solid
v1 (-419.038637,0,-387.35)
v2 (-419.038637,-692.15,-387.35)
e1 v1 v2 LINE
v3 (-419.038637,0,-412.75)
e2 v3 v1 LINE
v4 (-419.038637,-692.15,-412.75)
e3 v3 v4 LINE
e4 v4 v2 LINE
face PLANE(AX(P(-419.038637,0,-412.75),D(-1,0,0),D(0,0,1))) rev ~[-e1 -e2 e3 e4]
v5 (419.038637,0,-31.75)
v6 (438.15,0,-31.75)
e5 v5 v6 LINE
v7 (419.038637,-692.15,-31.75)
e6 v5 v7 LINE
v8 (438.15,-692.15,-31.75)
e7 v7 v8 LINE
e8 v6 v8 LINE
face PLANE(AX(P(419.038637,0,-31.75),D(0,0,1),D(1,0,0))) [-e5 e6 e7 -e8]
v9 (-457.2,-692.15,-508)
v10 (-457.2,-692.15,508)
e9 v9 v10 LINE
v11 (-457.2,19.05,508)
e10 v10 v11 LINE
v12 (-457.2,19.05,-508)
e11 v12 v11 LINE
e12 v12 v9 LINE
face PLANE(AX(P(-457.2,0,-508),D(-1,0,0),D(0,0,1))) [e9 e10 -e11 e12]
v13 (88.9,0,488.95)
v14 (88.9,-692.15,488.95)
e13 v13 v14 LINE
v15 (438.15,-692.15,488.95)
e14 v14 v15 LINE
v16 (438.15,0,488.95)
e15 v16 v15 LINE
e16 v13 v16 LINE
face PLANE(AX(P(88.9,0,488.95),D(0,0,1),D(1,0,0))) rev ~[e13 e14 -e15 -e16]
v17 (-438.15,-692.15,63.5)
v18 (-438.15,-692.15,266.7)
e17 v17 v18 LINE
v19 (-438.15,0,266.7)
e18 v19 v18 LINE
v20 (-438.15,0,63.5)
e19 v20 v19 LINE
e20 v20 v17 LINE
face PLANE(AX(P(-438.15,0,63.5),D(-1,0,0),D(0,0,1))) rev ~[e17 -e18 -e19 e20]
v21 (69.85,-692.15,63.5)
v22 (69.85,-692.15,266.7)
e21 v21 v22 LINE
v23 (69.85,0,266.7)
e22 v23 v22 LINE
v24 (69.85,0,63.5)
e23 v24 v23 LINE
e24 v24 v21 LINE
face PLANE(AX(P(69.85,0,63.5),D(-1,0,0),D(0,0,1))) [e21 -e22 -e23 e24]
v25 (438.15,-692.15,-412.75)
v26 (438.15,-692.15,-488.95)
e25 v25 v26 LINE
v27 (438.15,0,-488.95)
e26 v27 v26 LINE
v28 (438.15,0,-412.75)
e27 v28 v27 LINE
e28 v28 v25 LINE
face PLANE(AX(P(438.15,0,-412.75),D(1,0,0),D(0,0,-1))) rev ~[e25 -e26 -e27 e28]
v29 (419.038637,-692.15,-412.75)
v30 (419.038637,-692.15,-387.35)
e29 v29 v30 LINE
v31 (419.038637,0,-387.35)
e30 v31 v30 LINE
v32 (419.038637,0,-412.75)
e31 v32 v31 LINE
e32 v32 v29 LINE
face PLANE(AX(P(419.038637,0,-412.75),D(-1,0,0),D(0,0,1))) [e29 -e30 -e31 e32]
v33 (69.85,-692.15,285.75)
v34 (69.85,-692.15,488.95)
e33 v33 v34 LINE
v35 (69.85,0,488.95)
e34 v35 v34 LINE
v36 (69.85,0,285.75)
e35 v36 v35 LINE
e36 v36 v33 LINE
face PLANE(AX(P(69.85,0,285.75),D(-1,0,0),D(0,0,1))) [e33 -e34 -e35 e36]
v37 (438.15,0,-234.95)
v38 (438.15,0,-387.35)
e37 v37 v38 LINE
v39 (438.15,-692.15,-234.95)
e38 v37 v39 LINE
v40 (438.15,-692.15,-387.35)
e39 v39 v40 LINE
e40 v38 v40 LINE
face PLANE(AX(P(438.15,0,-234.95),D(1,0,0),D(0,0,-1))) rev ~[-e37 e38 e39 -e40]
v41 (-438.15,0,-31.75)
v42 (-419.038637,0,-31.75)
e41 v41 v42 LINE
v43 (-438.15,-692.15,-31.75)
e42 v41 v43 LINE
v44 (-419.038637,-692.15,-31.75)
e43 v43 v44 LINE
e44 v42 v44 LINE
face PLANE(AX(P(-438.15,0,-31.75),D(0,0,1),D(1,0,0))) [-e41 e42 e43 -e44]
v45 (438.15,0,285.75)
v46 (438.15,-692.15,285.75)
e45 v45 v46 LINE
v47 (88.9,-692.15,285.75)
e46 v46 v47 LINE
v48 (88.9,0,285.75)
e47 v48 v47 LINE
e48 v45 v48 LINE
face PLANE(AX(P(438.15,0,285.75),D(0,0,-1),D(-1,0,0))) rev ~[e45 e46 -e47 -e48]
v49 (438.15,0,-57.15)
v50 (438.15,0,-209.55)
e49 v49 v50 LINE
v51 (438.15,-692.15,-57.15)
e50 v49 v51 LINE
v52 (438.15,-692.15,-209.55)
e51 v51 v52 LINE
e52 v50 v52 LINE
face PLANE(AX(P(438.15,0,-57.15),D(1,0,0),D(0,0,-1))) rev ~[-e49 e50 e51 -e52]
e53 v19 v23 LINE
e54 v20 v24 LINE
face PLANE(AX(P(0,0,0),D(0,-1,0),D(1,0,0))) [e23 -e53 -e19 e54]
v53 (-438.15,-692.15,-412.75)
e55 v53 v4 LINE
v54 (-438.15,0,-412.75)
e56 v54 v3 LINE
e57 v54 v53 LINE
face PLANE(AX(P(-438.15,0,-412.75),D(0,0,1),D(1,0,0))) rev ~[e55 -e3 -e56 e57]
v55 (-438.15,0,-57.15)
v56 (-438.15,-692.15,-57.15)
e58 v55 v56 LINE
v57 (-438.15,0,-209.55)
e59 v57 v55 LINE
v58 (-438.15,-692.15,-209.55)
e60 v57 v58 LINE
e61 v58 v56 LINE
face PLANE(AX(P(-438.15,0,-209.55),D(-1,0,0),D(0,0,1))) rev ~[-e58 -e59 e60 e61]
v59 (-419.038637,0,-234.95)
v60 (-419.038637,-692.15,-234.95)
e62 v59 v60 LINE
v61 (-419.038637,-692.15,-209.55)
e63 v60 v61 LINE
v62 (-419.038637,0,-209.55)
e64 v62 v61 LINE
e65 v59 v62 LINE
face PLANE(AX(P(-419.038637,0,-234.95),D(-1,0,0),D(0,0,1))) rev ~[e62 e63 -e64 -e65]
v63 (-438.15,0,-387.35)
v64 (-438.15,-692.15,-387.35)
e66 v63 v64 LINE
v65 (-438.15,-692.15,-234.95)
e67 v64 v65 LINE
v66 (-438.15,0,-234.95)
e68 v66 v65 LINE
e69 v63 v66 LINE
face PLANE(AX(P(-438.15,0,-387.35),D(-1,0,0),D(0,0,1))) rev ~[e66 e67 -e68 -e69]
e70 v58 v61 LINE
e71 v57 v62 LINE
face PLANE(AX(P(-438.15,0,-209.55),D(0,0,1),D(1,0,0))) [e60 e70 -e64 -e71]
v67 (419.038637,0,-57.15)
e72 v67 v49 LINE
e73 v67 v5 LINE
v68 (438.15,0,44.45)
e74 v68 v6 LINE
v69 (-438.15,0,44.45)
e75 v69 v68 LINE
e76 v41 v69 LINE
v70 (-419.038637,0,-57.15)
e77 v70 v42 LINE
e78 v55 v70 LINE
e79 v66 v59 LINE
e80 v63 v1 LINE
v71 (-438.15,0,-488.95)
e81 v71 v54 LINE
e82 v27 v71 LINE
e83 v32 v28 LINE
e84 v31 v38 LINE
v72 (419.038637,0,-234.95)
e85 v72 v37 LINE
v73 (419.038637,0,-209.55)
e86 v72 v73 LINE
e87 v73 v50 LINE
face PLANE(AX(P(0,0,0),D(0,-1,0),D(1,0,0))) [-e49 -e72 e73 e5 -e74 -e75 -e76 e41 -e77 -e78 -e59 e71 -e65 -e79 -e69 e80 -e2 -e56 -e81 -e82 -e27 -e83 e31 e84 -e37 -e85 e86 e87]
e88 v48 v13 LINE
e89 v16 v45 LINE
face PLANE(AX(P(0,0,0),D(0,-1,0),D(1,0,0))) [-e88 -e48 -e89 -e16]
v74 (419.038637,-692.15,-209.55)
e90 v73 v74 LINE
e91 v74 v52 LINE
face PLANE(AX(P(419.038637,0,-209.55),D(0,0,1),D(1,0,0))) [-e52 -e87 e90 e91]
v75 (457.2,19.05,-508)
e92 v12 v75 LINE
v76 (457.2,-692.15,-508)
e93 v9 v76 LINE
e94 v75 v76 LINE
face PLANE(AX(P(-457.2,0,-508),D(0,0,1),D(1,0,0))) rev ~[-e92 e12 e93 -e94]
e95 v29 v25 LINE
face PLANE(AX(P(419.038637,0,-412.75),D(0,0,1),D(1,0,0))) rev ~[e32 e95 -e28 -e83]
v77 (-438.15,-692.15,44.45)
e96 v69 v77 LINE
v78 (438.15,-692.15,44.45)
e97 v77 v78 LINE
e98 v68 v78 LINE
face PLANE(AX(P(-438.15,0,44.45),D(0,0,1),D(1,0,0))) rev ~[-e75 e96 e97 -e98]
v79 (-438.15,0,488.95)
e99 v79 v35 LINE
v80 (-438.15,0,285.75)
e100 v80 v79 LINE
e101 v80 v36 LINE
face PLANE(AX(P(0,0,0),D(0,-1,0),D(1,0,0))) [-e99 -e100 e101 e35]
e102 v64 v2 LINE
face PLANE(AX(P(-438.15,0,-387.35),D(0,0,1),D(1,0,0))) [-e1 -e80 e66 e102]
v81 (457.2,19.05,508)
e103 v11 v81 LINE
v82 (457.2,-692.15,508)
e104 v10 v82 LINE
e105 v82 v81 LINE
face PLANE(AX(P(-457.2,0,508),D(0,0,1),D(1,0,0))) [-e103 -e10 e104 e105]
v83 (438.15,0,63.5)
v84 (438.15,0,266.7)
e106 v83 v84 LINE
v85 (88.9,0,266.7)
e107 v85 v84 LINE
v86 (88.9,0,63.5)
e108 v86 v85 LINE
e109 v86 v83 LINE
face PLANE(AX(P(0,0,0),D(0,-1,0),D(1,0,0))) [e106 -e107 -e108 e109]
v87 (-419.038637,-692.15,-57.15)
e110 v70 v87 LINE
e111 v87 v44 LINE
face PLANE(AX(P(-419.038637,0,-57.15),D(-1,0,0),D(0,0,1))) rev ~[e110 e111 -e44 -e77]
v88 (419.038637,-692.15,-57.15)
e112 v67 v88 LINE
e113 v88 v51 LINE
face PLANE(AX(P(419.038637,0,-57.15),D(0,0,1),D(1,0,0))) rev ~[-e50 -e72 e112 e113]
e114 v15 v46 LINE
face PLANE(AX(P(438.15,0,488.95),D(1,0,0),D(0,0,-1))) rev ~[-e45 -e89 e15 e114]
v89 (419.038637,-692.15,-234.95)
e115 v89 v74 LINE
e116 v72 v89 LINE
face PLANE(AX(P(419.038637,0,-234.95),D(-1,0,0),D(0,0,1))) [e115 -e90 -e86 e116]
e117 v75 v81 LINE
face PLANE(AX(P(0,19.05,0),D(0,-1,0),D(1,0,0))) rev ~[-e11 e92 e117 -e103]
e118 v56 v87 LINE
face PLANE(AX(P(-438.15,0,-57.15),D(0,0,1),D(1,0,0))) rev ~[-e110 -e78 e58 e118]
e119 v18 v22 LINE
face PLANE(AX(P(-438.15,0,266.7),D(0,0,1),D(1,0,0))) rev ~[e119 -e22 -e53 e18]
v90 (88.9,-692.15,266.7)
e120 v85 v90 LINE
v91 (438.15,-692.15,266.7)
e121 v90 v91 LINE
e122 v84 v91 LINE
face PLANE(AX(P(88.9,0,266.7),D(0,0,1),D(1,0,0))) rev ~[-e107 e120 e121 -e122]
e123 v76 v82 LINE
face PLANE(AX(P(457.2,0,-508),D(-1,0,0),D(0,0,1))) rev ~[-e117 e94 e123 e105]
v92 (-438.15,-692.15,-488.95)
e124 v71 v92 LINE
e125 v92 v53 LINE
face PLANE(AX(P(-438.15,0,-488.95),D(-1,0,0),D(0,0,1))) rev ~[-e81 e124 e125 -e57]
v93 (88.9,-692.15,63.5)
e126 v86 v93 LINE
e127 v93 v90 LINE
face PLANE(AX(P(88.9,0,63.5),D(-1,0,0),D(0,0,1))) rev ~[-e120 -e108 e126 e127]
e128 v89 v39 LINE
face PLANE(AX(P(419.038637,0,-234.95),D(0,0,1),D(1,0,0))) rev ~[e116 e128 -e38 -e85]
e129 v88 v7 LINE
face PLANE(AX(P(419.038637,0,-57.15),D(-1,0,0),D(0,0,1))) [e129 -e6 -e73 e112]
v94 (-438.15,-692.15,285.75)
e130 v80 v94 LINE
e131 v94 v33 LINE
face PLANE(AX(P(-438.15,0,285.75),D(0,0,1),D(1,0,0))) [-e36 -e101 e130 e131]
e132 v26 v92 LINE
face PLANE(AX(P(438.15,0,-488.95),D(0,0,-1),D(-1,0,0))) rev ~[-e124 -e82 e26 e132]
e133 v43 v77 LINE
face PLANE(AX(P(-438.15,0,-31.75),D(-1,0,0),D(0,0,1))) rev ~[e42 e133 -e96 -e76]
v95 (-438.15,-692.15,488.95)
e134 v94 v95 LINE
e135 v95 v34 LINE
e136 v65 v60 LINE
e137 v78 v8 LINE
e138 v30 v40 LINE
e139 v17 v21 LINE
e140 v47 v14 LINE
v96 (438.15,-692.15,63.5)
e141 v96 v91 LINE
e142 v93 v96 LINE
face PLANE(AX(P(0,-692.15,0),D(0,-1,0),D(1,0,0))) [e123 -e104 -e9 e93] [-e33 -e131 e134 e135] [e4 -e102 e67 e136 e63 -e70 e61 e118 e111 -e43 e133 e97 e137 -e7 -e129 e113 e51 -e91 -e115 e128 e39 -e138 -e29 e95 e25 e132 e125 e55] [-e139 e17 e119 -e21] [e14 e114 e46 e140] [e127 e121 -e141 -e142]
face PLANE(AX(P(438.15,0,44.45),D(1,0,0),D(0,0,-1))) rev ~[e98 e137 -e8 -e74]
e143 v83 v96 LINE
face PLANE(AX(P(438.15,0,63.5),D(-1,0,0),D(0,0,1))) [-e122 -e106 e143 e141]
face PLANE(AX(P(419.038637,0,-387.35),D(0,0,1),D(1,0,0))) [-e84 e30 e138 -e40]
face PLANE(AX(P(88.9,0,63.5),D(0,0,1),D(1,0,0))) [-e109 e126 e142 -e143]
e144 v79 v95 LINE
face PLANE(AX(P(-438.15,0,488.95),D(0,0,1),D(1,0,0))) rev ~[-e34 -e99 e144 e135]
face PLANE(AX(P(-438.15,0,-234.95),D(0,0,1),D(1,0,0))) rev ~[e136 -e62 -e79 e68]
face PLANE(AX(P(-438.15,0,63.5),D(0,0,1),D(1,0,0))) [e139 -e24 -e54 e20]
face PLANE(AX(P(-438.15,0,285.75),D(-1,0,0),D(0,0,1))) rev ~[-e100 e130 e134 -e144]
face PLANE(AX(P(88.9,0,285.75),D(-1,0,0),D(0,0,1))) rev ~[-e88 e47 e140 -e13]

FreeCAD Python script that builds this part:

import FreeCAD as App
import Part
import Sketcher
Q = App.Units.Quantity


def add_polygon(sketch, points):
    """Adds a closed chain of lines whose ends are joined by coincident constraints."""
    first, n = sketch.GeometryCount, len(points)
    for a, b in zip(points, points[1:] + points[:1]):
        sketch.addGeometry(Part.LineSegment(App.Vector(*a, 0), App.Vector(*b, 0)), False)
    for i in range(n):
        sketch.addConstraint(Sketcher.Constraint("Coincident", first + i, 2, first + (i + 1) % n, 1))

doc = App.newDocument("Part")
body = doc.addObject("PartDesign::Body", "Body")

# Sketch on XZ plane
sketch1 = doc.addObject("Sketcher::SketchObject", "Sketch")
body.addObject(sketch1)
sketch1.AttachmentSupport = (doc.XZ_Plane, [""])
sketch1.MapMode = "FlatFace"
add_polygon(sketch1, [(-457, 508), (-457, -508), (457, -508), (457, 508)])  # lines 0-3
sketch1.addConstraint(Sketcher.Constraint("Vertical", 0))
sketch1.addConstraint(Sketcher.Constraint("Horizontal", 1))
sketch1.addConstraint(Sketcher.Constraint("Vertical", 2))
sketch1.addConstraint(Sketcher.Constraint("Horizontal", 3))
sketch1.addConstraint(Sketcher.Constraint("Symmetric", 0, 2, 2, 2, -1, 1))
sketch1.addConstraint(Sketcher.Constraint("DistanceX", 1, 1, 1, 2, Q("36 in")))
sketch1.addConstraint(Sketcher.Constraint("DistanceY", 0, 2, 0, 1, Q("40 in")))
pad1 = doc.addObject("PartDesign::Pad", "Pad")
body.addObject(pad1)
pad1.Profile = sketch1
pad1.Length = Q("0.75 in")
pad1.Reversed = True

# Sketch on XZ plane
sketch2 = doc.addObject("Sketcher::SketchObject", "Sketch001")
body.addObject(sketch2)
sketch2.AttachmentSupport = (doc.XZ_Plane, [""])
sketch2.MapMode = "FlatFace"
add_polygon(sketch2, [(-457, 508), (-457, -508), (457, -508), (457, 508)])  # lines 0-3
add_polygon(sketch2, [(-438, -489), (-438, -413), (-419, -413), (-419, -387), (-438, -387), (-438, -235), (-419, -235), (-419, -210), (-438, -210), (-438, -57), (-419, -57), (-419, -32), (-438, -32), (-438, 44), (438, 44), (438, -32), (419, -32), (419, -57), (438, -57), (438, -210), (419, -210), (419, -235), (438, -235), (438, -387), (419, -387), (419, -413), (438, -413), (438, -489)])  # lines 4-31
add_polygon(sketch2, [(70, 64), (-438, 64), (-438, 267), (70, 267)])  # lines 32-35
add_polygon(sketch2, [(70, 286), (-438, 286), (-438, 489), (70, 489)])  # lines 36-39
add_polygon(sketch2, [(438, 64), (89, 64), (89, 267), (438, 267)])  # lines 40-43
add_polygon(sketch2, [(89, 489), (438, 489), (438, 286), (89, 286)])  # lines 44-47
sketch2.addConstraint(Sketcher.Constraint("Vertical", 0))
sketch2.addConstraint(Sketcher.Constraint("Horizontal", 1))
sketch2.addConstraint(Sketcher.Constraint("Vertical", 2))
sketch2.addConstraint(Sketcher.Constraint("Horizontal", 3))
sketch2.addConstraint(Sketcher.Constraint("Vertical", 4))
sketch2.addConstraint(Sketcher.Constraint("Horizontal", 5))
sketch2.addConstraint(Sketcher.Constraint("Vertical", 6))
sketch2.addConstraint(Sketcher.Constraint("Horizontal", 7))
sketch2.addConstraint(Sketcher.Constraint("Vertical", 8))
sketch2.addConstraint(Sketcher.Constraint("Horizontal", 9))
sketch2.addConstraint(Sketcher.Constraint("Vertical", 10))
sketch2.addConstraint(Sketcher.Constraint("Horizontal", 11))
sketch2.addConstraint(Sketcher.Constraint("Vertical", 12))
sketch2.addConstraint(Sketcher.Constraint("Horizontal", 13))
sketch2.addConstraint(Sketcher.Constraint("Vertical", 14))
sketch2.addConstraint(Sketcher.Constraint("Horizontal", 15))
sketch2.addConstraint(Sketcher.Constraint("Vertical", 16))
sketch2.addConstraint(Sketcher.Constraint("Horizontal", 17))
sketch2.addConstraint(Sketcher.Constraint("Vertical", 18))
sketch2.addConstraint(Sketcher.Constraint("Horizontal", 19))
sketch2.addConstraint(Sketcher.Constraint("Vertical", 20))
sketch2.addConstraint(Sketcher.Constraint("Horizontal", 21))
sketch2.addConstraint(Sketcher.Constraint("Vertical", 22))
sketch2.addConstraint(Sketcher.Constraint("Horizontal", 23))
sketch2.addConstraint(Sketcher.Constraint("Vertical", 24))
sketch2.addConstraint(Sketcher.Constraint("Horizontal", 25))
sketch2.addConstraint(Sketcher.Constraint("Vertical", 26))
sketch2.addConstraint(Sketcher.Constraint("Horizontal", 27))
sketch2.addConstraint(Sketcher.Constraint("Vertical", 28))
sketch2.addConstraint(Sketcher.Constraint("Horizontal", 29))
sketch2.addConstraint(Sketcher.Constraint("Vertical", 30))
sketch2.addConstraint(Sketcher.Constraint("Horizontal", 31))
sketch2.addConstraint(Sketcher.Constraint("Horizontal", 32))
sketch2.addConstraint(Sketcher.Constraint("Vertical", 33))
sketch2.addConstraint(Sketcher.Constraint("Horizontal", 34))
sketch2.addConstraint(Sketcher.Constraint("Vertical", 35))
sketch2.addConstraint(Sketcher.Constraint("Horizontal", 36))
sketch2.addConstraint(Sketcher.Constraint("Vertical", 37))
sketch2.addConstraint(Sketcher.Constraint("Horizontal", 38))
sketch2.addConstraint(Sketcher.Constraint("Vertical", 39))
sketch2.addConstraint(Sketcher.Constraint("Horizontal", 40))
sketch2.addConstraint(Sketcher.Constraint("Vertical", 41))
sketch2.addConstraint(Sketcher.Constraint("Horizontal", 42))
sketch2.addConstraint(Sketcher.Constraint("Vertical", 43))
sketch2.addConstraint(Sketcher.Constraint("Horizontal", 44))
sketch2.addConstraint(Sketcher.Constraint("Vertical", 45))
sketch2.addConstraint(Sketcher.Constraint("Horizontal", 46))
sketch2.addConstraint(Sketcher.Constraint("Vertical", 47))
sketch2.addConstraint(Sketcher.Constraint("Symmetric", 0, 2, 2, 2, -1, 1))
sketch2.addConstraint(Sketcher.Constraint("Symmetric", 30, 2, 37, 2, -1, 1))
sketch2.addConstraint(Sketcher.Constraint("Symmetric", 31, 2, 44, 2, -1, 1))
sketch2.addConstraint(Sketcher.Constraint("Symmetric", 15, 2, 18, 2, -2))
sketch2.addConstraint(Sketcher.Constraint("Symmetric", 13, 2, 20, 2, -2))
sketch2.addConstraint(Sketcher.Constraint("Symmetric", 11, 2, 22, 2, -2))
sketch2.addConstraint(Sketcher.Constraint("Symmetric", 9, 2, 24, 2, -2))
sketch2.addConstraint(Sketcher.Constraint("Symmetric", 7, 2, 26, 2, -2))
sketch2.addConstraint(Sketcher.Constraint("Symmetric", 5, 2, 28, 2, -2))
sketch2.addConstraint(Sketcher.Constraint("Symmetric", 33, 2, 42, 2, -2))
sketch2.addConstraint(Sketcher.Constraint("Symmetric", 36, 2, 45, 2, -2))
sketch2.addConstraint(Sketcher.Constraint("Horizontal", 35, 2, 40, 2))
sketch2.addConstraint(Sketcher.Constraint("Vertical", 4, 2, 7, 2))
sketch2.addConstraint(Sketcher.Constraint("Vertical", 6, 2, 9, 2))
sketch2.addConstraint(Sketcher.Constraint("Vertical", 8, 2, 11, 2))
sketch2.addConstraint(Sketcher.Constraint("Vertical", 10, 2, 13, 2))
sketch2.addConstraint(Sketcher.Constraint("Vertical", 12, 2, 15, 2))
sketch2.addConstraint(Sketcher.Constraint("Vertical", 31, 2, 32, 2))
sketch2.addConstraint(Sketcher.Constraint("Vertical", 35, 2, 38, 2))
sketch2.addConstraint(Sketcher.Constraint("Vertical", 41, 2, 46, 2))
sketch2.addConstraint(Sketcher.Constraint("Equal", 6, 10))
sketch2.addConstraint(Sketcher.Constraint("Equal", 8, 12))
sketch2.addConstraint(Sketcher.Constraint("Equal", 10, 14))
sketch2.addConstraint(Sketcher.Constraint("Equal", 4, 16))
sketch2.addConstraint(Sketcher.Constraint("Equal", 35, 37))
sketch2.addConstraint(Sketcher.Constraint("DistanceX", 1, 1, 1, 2, Q("36 in")))
sketch2.addConstraint(Sketcher.Constraint("DistanceX", 32, 2, 32, 1, Q("20 in")))
sketch2.addConstraint(Sketcher.Constraint("DistanceY", 0, 2, 0, 1, Q("40 in")))
sketch2.addConstraint(Sketcher.Constraint("DistanceY", 4, 1, 4, 2, Q("3 in")))
sketch2.addConstraint(Sketcher.Constraint("DistanceY", 6, 1, 6, 2, Q("1 in")))
sketch2.addConstraint(Sketcher.Constraint("DistanceY", 8, 1, 8, 2, Q("6 in")))
sketch2.addConstraint(Sketcher.Constraint("DistanceY", 33, 1, 33, 2, Q("8 in")))
sketch2.addConstraint(Sketcher.Constraint("DistanceX", 17, 1, 17, 2, Q("34.5 in")))
sketch2.addConstraint(Sketcher.Constraint("DistanceX", 40, 2, 40, 1, Q("13.75 in")))
sketch2.addConstraint(Sketcher.Constraint("DistanceY", -1, 1, 32, 2, Q("2.5 in")))
sketch2.addConstraint(Sketcher.Constraint("DistanceY", 16, 2, 36, 2, Q("9.5 in")))
sketch2.addConstraint(Sketcher.Constraint("DistanceX", 5, 1, 5, 2, 19.111363))
pad2 = doc.addObject("PartDesign::Pad", "Pad001")
body.addObject(pad2)
pad2.Profile = sketch2
pad2.Length = Q("27.25 in")

doc.recompute()
